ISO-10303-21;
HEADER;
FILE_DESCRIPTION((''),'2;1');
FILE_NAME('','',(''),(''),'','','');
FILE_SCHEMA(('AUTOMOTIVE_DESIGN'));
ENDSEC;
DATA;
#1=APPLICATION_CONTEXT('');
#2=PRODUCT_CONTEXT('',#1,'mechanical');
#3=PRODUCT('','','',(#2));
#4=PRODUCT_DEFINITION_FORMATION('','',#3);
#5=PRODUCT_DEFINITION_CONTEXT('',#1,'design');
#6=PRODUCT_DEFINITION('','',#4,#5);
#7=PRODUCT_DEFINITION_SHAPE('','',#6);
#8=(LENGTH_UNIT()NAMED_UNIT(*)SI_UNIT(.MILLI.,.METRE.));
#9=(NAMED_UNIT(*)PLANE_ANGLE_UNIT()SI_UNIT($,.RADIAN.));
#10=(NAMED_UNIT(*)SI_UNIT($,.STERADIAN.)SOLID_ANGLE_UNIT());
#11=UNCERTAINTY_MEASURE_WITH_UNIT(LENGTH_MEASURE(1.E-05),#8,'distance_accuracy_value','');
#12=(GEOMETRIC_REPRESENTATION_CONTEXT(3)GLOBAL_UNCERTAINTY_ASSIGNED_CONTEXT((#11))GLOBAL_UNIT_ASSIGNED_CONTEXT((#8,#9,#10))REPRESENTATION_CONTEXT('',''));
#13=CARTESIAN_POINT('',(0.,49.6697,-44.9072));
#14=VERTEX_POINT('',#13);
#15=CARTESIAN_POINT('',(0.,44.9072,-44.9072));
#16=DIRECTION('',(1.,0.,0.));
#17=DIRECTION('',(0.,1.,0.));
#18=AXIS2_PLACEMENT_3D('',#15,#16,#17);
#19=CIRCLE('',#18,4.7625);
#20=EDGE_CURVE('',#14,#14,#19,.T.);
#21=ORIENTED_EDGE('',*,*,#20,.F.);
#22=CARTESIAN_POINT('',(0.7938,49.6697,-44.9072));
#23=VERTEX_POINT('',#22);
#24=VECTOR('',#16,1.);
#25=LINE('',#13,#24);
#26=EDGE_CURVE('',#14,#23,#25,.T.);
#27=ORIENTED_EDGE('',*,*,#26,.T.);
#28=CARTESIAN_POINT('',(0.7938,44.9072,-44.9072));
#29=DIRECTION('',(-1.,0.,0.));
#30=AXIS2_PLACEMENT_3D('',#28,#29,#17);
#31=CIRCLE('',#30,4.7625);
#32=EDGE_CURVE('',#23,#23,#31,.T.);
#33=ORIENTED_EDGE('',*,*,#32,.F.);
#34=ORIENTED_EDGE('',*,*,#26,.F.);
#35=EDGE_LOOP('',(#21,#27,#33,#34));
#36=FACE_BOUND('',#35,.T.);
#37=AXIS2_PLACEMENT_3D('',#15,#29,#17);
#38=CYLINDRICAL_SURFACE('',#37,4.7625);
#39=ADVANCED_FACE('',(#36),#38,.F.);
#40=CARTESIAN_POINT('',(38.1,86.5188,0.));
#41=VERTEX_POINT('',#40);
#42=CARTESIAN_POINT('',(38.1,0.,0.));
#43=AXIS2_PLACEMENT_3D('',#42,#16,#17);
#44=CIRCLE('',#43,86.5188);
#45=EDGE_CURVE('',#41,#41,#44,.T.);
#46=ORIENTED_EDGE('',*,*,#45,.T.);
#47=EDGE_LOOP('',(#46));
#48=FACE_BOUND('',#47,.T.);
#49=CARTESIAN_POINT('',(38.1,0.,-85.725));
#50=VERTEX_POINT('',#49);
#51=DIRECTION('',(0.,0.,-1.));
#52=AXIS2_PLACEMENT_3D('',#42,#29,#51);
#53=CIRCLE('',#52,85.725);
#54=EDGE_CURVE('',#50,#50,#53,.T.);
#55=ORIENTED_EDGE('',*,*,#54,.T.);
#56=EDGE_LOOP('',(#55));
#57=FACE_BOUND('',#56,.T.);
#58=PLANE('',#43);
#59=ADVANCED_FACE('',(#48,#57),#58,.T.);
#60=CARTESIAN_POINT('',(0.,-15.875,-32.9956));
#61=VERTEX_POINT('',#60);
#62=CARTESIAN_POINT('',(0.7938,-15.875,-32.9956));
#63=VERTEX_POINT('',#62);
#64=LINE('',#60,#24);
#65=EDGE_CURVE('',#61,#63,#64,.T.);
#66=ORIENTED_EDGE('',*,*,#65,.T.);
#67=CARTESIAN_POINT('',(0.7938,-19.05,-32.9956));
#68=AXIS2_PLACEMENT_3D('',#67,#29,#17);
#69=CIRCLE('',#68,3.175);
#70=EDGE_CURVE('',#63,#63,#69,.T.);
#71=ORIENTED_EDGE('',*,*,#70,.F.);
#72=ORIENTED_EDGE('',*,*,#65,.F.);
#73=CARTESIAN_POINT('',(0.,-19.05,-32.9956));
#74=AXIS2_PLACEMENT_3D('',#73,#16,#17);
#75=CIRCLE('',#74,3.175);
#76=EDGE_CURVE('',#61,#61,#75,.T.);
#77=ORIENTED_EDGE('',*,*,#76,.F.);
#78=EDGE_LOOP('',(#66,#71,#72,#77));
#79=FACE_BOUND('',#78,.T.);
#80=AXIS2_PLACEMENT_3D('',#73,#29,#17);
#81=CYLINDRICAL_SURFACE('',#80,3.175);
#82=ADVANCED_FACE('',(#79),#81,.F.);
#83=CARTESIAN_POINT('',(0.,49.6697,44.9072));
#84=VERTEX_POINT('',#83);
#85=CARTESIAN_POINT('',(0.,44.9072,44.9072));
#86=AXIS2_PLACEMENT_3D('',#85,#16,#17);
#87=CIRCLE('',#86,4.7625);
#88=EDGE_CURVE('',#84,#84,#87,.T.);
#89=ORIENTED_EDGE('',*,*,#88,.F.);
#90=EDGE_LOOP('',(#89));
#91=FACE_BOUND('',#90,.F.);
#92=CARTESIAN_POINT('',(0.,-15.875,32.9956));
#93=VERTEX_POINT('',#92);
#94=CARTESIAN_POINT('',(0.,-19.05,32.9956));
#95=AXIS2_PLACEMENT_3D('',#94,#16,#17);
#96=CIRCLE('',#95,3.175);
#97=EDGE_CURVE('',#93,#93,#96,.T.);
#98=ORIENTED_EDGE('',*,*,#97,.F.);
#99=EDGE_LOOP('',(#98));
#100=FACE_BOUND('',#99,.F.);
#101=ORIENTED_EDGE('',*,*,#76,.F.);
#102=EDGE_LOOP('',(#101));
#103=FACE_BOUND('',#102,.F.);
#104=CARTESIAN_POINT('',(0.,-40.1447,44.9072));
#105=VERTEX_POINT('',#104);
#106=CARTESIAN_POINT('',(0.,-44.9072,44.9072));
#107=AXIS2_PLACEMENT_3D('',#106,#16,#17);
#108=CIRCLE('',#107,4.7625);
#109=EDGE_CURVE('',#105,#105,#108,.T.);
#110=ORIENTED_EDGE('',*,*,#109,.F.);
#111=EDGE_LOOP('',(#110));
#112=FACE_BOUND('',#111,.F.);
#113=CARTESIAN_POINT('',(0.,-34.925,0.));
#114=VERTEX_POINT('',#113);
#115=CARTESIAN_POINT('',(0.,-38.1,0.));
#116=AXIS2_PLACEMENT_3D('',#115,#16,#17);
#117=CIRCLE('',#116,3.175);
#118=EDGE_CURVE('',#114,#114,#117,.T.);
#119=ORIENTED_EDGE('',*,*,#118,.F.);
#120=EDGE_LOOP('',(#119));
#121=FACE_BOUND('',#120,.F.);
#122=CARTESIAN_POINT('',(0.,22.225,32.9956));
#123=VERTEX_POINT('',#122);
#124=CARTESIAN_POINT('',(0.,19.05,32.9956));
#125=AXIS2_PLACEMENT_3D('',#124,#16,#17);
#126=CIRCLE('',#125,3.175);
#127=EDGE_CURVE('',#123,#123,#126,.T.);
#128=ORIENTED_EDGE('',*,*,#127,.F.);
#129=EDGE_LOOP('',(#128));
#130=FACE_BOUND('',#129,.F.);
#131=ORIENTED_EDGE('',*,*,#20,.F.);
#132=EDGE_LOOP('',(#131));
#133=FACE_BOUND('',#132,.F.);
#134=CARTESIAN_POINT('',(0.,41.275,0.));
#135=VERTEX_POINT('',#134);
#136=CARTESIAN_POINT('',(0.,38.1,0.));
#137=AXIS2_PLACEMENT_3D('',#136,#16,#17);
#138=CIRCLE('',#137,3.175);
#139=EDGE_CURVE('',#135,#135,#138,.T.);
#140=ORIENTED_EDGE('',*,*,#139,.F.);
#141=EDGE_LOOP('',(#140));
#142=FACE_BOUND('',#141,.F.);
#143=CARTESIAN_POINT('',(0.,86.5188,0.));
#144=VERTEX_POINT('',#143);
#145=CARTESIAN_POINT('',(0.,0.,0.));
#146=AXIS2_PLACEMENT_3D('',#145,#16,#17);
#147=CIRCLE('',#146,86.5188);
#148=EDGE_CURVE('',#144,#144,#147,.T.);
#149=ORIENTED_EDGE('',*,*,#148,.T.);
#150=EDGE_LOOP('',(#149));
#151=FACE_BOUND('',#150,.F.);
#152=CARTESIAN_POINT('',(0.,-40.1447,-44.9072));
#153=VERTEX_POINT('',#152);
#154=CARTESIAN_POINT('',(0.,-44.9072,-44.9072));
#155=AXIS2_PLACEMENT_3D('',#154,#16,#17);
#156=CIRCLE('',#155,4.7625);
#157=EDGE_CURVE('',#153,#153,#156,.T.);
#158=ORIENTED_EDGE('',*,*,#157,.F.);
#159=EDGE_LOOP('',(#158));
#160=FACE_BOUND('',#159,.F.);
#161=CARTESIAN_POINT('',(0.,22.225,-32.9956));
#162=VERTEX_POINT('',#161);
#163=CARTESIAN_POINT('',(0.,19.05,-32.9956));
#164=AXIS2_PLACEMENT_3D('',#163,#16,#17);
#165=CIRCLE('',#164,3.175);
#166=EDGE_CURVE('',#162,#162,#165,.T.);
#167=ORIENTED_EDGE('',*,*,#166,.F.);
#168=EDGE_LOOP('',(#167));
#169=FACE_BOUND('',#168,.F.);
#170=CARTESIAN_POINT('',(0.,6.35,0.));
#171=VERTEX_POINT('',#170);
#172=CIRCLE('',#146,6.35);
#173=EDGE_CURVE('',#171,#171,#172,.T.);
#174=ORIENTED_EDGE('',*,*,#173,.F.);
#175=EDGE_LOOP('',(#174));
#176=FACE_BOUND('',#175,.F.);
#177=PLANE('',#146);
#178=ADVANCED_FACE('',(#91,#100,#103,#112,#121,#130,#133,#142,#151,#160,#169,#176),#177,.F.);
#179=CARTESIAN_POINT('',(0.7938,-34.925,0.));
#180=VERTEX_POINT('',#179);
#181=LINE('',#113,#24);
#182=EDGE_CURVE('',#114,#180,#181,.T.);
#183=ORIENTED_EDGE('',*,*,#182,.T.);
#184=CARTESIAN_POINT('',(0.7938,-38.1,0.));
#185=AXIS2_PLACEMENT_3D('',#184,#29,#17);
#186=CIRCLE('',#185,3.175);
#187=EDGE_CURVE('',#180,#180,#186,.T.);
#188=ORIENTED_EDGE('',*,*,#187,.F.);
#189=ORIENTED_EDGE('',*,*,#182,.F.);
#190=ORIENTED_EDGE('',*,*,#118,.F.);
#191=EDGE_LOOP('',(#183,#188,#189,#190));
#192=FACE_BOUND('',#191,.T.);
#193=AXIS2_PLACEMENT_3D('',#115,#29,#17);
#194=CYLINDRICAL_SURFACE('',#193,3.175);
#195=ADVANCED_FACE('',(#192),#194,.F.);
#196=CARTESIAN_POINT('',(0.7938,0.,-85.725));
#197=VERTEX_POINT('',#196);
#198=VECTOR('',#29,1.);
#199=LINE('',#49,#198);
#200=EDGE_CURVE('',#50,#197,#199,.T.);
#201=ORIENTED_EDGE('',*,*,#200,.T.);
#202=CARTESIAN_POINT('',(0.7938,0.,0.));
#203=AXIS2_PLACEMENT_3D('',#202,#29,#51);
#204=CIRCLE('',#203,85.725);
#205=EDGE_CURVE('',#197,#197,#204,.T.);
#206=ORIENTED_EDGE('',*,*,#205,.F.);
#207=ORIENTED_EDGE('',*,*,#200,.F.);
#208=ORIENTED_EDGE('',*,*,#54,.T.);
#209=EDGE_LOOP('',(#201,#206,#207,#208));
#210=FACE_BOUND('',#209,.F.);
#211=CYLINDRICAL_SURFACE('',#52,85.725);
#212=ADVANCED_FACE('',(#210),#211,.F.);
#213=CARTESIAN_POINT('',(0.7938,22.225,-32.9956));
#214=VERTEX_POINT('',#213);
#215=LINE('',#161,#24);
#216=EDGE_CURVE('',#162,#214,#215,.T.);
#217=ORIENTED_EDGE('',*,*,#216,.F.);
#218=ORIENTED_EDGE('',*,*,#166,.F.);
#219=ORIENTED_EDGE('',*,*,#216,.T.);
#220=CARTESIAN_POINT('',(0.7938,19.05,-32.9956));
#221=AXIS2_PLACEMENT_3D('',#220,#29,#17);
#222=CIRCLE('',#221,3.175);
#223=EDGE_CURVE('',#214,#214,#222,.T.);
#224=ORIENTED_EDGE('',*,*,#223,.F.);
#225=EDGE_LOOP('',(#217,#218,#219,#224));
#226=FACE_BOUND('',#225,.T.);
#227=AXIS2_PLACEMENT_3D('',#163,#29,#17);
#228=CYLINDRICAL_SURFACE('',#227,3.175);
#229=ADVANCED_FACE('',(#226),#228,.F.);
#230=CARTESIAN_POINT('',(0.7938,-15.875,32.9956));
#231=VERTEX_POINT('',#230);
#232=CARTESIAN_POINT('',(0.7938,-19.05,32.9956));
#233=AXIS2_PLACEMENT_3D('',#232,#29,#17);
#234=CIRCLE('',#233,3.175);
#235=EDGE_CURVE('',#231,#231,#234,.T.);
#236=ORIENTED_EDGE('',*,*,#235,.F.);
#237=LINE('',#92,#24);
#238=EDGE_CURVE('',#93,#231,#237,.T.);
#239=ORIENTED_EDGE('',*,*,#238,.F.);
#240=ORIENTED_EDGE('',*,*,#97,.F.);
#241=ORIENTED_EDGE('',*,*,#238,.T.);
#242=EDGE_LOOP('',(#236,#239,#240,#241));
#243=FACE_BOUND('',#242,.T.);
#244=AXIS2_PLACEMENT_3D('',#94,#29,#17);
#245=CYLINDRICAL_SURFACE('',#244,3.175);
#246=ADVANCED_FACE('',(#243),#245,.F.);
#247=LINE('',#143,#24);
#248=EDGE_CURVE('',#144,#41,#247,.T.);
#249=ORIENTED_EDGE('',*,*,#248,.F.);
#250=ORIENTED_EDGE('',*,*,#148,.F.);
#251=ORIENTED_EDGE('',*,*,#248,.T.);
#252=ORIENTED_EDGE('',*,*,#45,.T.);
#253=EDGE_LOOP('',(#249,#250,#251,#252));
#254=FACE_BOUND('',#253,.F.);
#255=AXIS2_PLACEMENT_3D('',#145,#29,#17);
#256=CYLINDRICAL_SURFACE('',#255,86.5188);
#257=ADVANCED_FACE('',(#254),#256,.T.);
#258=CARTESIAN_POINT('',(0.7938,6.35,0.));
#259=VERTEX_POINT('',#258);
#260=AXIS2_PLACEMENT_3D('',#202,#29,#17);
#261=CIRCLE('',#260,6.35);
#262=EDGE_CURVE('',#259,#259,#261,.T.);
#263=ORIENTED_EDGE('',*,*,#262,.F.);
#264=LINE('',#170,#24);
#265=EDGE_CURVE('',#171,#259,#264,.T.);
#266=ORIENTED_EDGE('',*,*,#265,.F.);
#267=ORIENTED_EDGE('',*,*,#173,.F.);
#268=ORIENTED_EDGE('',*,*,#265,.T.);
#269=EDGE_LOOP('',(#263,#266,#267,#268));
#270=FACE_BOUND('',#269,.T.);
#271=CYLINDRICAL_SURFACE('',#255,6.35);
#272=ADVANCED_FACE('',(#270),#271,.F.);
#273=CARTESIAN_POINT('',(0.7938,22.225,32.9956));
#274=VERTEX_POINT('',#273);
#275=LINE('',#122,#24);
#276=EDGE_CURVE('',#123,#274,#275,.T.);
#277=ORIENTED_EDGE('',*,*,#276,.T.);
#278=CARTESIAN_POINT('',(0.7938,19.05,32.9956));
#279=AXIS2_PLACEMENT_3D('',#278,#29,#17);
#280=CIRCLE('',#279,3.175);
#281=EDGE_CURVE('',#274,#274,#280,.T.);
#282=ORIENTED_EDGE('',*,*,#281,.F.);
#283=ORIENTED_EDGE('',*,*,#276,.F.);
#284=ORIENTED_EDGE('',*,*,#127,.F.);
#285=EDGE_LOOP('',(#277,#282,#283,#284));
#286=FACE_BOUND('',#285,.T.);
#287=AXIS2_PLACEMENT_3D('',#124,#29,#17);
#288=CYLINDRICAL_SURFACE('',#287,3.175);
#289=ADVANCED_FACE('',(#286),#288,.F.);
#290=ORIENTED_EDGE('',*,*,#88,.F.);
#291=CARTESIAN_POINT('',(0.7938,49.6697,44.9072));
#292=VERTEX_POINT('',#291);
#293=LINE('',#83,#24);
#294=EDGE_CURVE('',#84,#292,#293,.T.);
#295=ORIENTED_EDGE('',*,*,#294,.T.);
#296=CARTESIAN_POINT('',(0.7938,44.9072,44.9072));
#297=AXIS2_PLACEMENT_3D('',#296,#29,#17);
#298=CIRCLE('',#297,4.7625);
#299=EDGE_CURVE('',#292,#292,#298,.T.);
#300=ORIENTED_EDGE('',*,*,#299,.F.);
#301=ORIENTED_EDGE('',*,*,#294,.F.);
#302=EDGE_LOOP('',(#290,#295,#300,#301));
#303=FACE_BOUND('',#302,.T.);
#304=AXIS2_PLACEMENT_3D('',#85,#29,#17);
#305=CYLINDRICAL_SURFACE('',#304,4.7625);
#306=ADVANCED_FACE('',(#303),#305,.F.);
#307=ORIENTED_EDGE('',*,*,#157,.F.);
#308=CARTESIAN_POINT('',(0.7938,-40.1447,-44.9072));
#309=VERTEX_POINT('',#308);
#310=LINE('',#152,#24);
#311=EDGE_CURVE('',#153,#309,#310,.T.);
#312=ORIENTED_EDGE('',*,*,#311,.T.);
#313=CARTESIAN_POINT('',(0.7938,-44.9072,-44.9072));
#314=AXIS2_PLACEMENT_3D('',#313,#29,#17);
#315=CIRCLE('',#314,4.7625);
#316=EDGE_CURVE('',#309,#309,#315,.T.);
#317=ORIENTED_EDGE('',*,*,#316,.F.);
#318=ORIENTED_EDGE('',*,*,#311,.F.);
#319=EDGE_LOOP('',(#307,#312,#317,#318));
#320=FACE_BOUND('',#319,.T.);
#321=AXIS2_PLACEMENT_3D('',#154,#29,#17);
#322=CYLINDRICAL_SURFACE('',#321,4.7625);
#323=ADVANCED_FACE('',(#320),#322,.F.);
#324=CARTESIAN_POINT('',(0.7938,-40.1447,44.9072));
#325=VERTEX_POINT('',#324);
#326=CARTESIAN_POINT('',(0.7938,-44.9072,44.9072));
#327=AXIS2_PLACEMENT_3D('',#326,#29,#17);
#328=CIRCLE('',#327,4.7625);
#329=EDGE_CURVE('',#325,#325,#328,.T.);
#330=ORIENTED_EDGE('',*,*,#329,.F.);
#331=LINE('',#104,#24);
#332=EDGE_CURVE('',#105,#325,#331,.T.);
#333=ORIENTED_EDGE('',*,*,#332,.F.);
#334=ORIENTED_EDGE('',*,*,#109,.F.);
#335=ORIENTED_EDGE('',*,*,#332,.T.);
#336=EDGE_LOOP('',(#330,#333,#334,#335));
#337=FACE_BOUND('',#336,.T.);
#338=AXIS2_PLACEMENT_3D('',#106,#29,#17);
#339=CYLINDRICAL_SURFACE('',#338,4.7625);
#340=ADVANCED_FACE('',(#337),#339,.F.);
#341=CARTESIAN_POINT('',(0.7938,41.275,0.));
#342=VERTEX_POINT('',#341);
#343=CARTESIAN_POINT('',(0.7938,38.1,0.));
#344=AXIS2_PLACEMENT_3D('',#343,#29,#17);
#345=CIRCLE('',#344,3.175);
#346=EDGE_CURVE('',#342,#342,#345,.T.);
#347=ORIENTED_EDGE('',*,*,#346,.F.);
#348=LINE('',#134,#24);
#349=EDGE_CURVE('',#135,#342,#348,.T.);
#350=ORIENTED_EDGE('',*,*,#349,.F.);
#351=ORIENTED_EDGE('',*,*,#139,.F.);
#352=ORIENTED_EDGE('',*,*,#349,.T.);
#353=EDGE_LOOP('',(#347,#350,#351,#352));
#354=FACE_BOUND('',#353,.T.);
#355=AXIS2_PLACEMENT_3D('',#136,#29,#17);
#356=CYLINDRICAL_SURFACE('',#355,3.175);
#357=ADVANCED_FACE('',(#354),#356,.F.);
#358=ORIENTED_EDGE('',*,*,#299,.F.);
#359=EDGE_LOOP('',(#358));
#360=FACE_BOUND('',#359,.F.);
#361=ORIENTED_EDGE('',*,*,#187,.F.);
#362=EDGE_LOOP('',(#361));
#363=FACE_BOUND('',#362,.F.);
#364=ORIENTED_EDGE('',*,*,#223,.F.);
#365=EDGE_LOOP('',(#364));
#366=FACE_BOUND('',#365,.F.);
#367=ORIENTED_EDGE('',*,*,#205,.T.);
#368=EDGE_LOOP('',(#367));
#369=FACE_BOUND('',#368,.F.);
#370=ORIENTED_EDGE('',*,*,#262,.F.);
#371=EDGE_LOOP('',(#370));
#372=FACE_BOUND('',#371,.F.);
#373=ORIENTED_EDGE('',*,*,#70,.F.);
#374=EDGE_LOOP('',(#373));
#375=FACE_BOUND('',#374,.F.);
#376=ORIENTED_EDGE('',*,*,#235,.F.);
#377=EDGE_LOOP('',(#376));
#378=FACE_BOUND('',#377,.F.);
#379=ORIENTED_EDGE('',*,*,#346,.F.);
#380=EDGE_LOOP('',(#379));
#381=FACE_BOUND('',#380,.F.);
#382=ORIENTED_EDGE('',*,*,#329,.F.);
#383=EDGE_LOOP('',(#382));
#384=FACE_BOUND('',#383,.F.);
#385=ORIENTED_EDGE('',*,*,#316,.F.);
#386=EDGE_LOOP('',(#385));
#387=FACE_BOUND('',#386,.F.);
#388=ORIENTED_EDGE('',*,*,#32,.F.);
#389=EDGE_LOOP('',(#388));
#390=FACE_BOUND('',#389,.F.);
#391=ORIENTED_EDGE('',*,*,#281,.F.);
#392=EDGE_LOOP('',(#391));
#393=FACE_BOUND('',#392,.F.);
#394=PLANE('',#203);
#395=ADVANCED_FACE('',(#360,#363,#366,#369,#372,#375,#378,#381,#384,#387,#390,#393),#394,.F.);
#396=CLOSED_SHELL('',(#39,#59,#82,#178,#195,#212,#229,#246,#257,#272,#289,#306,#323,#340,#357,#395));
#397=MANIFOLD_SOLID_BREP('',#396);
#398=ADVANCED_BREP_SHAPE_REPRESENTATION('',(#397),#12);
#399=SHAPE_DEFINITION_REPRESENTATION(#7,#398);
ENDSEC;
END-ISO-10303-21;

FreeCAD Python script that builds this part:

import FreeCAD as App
import Part
import Sketcher
Q = App.Units.Quantity

doc = App.newDocument("Part")
params = doc.addObject("Spreadsheet::Sheet", "Params")
for row, (alias, value) in enumerate([
    ("sketch1_diameter", "0.5 in"),
    ("sketch1_diameter2", "0.25 in"),
    ("sketch1_diameter3", "6.8125 in"),
    ("sketch1_diameter4", "0.375 in"),
    ("pad1_length", "1.5 in"),
    ("sketch2_diameter", "6.75 in"),
    ("hole_diameter", "6.75 in"),
    ("hole_depth", "1.468748 in"),
], start=1):
    params.set(f"A{row}", alias)
    params.set(f"B{row}", "=" + value)
    params.setAlias(f"B{row}", alias)

body = doc.addObject("PartDesign::Body", "Body")

sketch1 = body.newObject("Sketcher::SketchObject", "Sketch")
sketch1.AttachmentSupport = (doc.getObject("YZ_Plane"), [""])
sketch1.MapMode = "FlatFace"
sketch1.addGeometry(Part.Circle(App.Vector(0, 0, 0), App.Vector(0, 0, 1), 86.5188), False)
sketch1.addGeometry(Part.Circle(App.Vector(-44.9072, -44.9072, 0), App.Vector(0, 0, 1), 4.7625), False)
sketch1.addGeometry(Part.Circle(App.Vector(-19.05, -32.9956, 0), App.Vector(0, 0, 1), 3.175), False)
sketch1.addGeometry(Part.Circle(App.Vector(44.9072, -44.9072, 0), App.Vector(0, 0, 1), 4.7625), False)
sketch1.addGeometry(Part.Circle(App.Vector(19.05, -32.9956, 0), App.Vector(0, 0, 1), 3.175), False)
sketch1.addGeometry(Part.Circle(App.Vector(-38.1, 0, 0), App.Vector(0, 0, 1), 3.175), False)
sketch1.addGeometry(Part.Circle(App.Vector(-19.05, 32.9956, 0), App.Vector(0, 0, 1), 3.175), False)
sketch1.addGeometry(Part.Circle(App.Vector(-44.9072, 44.9072, 0), App.Vector(0, 0, 1), 4.7625), False)
sketch1.addGeometry(Part.Circle(App.Vector(0, 0, 0), App.Vector(0, 0, 1), 6.35), False)
sketch1.addGeometry(Part.Circle(App.Vector(38.1, 0, 0), App.Vector(0, 0, 1), 3.175), False)
sketch1.addGeometry(Part.Circle(App.Vector(19.05, 32.9956, 0), App.Vector(0, 0, 1), 3.175), False)
sketch1.addGeometry(Part.Circle(App.Vector(44.9072, 44.9072, 0), App.Vector(0, 0, 1), 4.7625), False)
sketch1.addConstraint(Sketcher.Constraint("Coincident", 0, 3, -1, 1))
sketch1.addConstraint(Sketcher.Constraint("Coincident", 8, 3, -1, 1))
sketch1.addConstraint(Sketcher.Constraint("Equal", 1, 3))
sketch1.addConstraint(Sketcher.Constraint("Equal", 2, 4))
sketch1.addConstraint(Sketcher.Constraint("Equal", 4, 5))
sketch1.addConstraint(Sketcher.Constraint("Equal", 5, 6))
sketch1.addConstraint(Sketcher.Constraint("Equal", 3, 7))
sketch1.addConstraint(Sketcher.Constraint("Equal", 6, 9))
sketch1.addConstraint(Sketcher.Constraint("Equal", 9, 10))
sketch1.addConstraint(Sketcher.Constraint("Equal", 7, 11))
sketch1.addConstraint(Sketcher.Constraint("Symmetric", 4, 3, 6, 3, -1, 1))
sketch1.addConstraint(Sketcher.Constraint("Symmetric", 3, 3, 7, 3, -1, 1))
sketch1.addConstraint(Sketcher.Constraint("Symmetric", 5, 3, 9, 3, -1, 1))
sketch1.addConstraint(Sketcher.Constraint("Symmetric", 2, 3, 10, 3, -1, 1))
sketch1.addConstraint(Sketcher.Constraint("Symmetric", 1, 3, 11, 3, -1, 1))
sketch1.addConstraint(Sketcher.Constraint("Symmetric", 1, 3, 3, 3, -2))
sketch1.addConstraint(Sketcher.Constraint("Symmetric", 2, 3, 4, 3, -2))
sketch1.addConstraint(Sketcher.Constraint("PointOnObject", 5, 3, -1))
sketch1.addConstraint(Sketcher.Constraint("Diameter", 8, Q("0.5 in")))
sketch1.addConstraint(Sketcher.Constraint("Diameter", 2, Q("0.25 in")))
sketch1.addConstraint(Sketcher.Constraint("Diameter", 0, Q("6.8125 in")))
sketch1.addConstraint(Sketcher.Constraint("Diameter", 1, Q("0.375 in")))
sketch1.addConstraint(Sketcher.Constraint("DistanceX", 5, 3, -1, 1, Q("1.5 in")))
sketch1.addConstraint(Sketcher.Constraint("DistanceX", 2, 3, 4, 3, Q("1.5 in")))
sketch1.addConstraint(Sketcher.Constraint("DistanceX", 1, 3, 3, 3, Q("3.536 in")))
sketch1.addConstraint(Sketcher.Constraint("DistanceY", 1, 3, 7, 3, Q("3.536 in")))
sketch1.addConstraint(Sketcher.Constraint("DistanceY", 2, 3, -1, 1, 32.9956))
sketch1.setExpression("Constraints[18]", "Params.sketch1_diameter")
sketch1.setExpression("Constraints[19]", "Params.sketch1_diameter2")
sketch1.setExpression("Constraints[20]", "Params.sketch1_diameter3")
sketch1.setExpression("Constraints[21]", "Params.sketch1_diameter4")
pad1 = body.newObject("PartDesign::Pad", "Pad")
pad1.Profile = sketch1
pad1.setExpression("Length", "Params.pad1_length")

sketch2 = body.newObject("Sketcher::SketchObject", "Sketch001")
sketch2.AttachmentSupport = (doc.getObject("YZ_Plane"), [""])
sketch2.MapMode = "FlatFace"
sketch2.AttachmentOffset = App.Placement(App.Vector(0, 0, 1.5 * 25.4), App.Rotation())
sketch2.addGeometry(Part.Circle(App.Vector(0, 0, 0), App.Vector(0, 0, 1), 85.725), False)
sketch2.addConstraint(Sketcher.Constraint("Coincident", 0, 3, -1, 1))
sketch2.addConstraint(Sketcher.Constraint("Diameter", 0, Q("6.75 in")))
sketch2.setExpression("Constraints[1]", "Params.sketch2_diameter")
doc.recompute()
hole = body.newObject("PartDesign::Hole", "Hole")
hole.Profile = sketch2
hole.ThreadType = "None"
hole.setExpression("Diameter", "Params.hole_diameter")
hole.DepthType = "Dimension"
hole.setExpression("Depth", "Params.hole_depth")
hole.DrillPoint = "Flat"

doc.recompute()
